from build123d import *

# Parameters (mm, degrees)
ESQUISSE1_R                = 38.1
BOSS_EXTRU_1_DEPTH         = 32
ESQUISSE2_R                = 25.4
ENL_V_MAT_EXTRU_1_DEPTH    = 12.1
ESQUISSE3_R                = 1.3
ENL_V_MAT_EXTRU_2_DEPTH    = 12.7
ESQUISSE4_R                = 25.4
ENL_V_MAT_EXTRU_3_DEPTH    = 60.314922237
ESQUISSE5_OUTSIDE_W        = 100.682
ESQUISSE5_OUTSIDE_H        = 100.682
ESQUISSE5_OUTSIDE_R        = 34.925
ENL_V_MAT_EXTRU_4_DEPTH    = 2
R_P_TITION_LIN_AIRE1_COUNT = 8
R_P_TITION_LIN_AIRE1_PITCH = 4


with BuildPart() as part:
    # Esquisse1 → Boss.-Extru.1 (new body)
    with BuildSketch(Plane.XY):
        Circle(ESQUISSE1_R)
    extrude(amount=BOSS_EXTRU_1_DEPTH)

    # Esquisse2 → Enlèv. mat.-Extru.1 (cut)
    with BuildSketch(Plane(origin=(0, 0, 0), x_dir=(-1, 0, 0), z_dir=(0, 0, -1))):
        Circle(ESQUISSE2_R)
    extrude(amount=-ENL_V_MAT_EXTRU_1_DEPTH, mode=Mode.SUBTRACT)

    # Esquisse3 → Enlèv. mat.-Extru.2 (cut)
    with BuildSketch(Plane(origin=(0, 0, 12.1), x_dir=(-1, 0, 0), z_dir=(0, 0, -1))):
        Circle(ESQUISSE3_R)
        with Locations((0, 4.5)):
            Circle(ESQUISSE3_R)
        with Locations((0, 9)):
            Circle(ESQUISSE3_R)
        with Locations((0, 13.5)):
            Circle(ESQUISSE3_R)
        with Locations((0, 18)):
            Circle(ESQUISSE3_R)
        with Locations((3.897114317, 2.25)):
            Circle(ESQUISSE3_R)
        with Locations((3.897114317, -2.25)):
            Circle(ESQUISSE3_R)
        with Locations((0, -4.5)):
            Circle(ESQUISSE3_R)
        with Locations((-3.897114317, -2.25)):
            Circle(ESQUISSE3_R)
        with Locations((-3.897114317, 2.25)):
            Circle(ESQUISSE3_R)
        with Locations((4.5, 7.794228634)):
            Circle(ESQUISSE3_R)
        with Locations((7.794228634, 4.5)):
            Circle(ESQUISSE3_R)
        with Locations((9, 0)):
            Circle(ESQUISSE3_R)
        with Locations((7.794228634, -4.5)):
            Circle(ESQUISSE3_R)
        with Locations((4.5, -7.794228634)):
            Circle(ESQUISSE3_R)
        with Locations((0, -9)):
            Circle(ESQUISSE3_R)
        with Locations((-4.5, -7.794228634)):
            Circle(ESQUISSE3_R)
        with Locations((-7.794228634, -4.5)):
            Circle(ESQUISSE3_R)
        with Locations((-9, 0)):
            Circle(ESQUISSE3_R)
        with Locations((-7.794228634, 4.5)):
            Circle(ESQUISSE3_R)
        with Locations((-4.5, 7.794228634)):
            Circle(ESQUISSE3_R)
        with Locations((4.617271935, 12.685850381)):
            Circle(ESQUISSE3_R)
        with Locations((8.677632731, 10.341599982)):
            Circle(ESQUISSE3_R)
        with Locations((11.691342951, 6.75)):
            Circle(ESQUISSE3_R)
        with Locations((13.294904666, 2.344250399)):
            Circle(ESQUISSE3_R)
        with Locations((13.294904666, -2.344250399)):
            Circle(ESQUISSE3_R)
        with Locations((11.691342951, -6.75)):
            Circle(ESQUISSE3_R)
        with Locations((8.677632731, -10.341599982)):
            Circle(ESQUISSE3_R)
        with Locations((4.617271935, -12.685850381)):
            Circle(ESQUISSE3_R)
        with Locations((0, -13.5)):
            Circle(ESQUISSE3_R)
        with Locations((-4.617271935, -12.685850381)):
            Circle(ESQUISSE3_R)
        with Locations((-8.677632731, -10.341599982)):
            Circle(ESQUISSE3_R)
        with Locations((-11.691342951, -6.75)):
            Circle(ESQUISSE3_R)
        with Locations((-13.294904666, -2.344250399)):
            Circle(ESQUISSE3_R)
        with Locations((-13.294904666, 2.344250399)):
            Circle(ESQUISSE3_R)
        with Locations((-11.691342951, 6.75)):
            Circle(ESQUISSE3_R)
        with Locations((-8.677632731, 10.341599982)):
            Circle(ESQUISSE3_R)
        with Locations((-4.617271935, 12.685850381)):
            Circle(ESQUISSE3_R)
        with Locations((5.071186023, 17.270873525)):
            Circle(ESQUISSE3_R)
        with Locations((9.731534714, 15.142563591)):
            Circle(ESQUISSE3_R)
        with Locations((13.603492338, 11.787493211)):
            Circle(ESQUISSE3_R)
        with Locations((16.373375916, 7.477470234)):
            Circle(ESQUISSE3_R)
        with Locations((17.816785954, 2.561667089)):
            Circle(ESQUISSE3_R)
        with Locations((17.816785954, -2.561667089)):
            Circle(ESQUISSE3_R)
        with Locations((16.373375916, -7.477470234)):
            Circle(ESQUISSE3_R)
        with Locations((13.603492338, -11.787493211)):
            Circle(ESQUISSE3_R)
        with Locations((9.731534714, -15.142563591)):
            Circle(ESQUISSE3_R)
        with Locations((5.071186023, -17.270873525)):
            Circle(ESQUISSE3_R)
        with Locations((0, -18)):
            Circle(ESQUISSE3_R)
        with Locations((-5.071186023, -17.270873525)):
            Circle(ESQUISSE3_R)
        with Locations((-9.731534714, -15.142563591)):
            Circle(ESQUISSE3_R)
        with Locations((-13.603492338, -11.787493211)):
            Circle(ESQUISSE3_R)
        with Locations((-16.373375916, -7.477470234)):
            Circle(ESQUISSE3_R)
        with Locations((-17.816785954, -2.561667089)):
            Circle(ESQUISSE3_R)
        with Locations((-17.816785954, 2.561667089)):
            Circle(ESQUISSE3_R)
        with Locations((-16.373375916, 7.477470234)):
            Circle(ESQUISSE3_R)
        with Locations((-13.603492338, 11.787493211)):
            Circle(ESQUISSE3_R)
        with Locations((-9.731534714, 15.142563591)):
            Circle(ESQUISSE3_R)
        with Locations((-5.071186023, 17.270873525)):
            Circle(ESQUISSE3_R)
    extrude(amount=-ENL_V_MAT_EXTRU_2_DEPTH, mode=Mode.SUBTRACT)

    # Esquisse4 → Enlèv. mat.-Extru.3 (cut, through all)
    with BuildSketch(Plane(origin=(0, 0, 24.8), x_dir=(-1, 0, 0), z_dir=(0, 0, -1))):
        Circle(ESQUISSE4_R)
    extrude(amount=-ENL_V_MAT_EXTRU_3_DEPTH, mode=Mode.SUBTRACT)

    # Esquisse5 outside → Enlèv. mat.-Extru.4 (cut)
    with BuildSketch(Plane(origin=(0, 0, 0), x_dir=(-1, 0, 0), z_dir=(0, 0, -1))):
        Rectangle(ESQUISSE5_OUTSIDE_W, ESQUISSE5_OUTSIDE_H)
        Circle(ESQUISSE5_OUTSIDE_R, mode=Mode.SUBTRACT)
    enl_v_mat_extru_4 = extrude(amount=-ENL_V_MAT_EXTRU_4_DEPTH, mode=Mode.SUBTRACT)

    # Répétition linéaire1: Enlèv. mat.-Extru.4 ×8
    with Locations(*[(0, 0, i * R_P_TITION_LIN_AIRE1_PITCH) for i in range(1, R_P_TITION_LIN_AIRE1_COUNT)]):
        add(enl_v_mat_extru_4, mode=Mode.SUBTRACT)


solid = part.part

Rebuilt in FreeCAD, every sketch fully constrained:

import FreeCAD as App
import Part
import Sketcher

V = App.Vector
Q = App.Units.Quantity


def add_polygon(sketch, points):
    """Adds a closed chain of lines whose ends are joined by coincident constraints."""
    first, n = sketch.GeometryCount, len(points)
    for a, b in zip(points, points[1:] + points[:1]):
        sketch.addGeometry(Part.LineSegment(App.Vector(*a, 0), App.Vector(*b, 0)), False)
    for i in range(n):
        sketch.addConstraint(Sketcher.Constraint("Coincident", first + i, 2, first + (i + 1) % n, 1))

doc = App.newDocument("Part")
params = doc.addObject("Spreadsheet::Sheet", "Params")
for row, (alias, value) in enumerate([
    ("sketch1_diameter", "76.2 mm"),
    ("pad1_length", "32 mm"),
    ("sketch2_diameter", "50.8 mm"),
    ("pocket1_length", "12.1 mm"),
    ("sketch3_diameter", "2.6 mm"),
    ("pocket2_length", "12.7 mm"),
    ("sketch4_diameter", "50.8 mm"),
    ("sketch5_diameter", "69.85 mm"),
    ("pocket4_length", "2 mm"),
    ("linearpattern_pitch", "4 mm"),
], start=1):
    params.set(f"A{row}", alias)
    params.set(f"B{row}", "=" + value)
    params.setAlias(f"B{row}", alias)

body = doc.addObject("PartDesign::Body", "Body")

# Sketch on XY plane
sketch1 = doc.addObject("Sketcher::SketchObject", "Sketch")
body.addObject(sketch1)
sketch1.AttachmentSupport = (doc.XY_Plane, [""])
sketch1.MapMode = "FlatFace"
sketch1.addGeometry(Part.Circle(V(0, 0, 0), V(0, 0, 1), 38), False)
sketch1.addConstraint([
    Sketcher.Constraint("Coincident", 0, 3, -1, 1),
    Sketcher.Constraint("Diameter", 0, Q("76.2 mm")),
])
sketch1.setExpression("Constraints[1]", "Params.sketch1_diameter")
pad1 = doc.addObject("PartDesign::Pad", "Pad")
body.addObject(pad1)
pad1.Profile = sketch1
pad1.setExpression("Length", "Params.pad1_length")

# Sketch on XY plane
sketch2 = doc.addObject("Sketcher::SketchObject", "Sketch001")
body.addObject(sketch2)
sketch2.AttachmentSupport = (doc.XY_Plane, [""])
sketch2.MapMode = "FlatFace"
sketch2.addGeometry(Part.Circle(V(0, 0, 0), V(0, 0, 1), 25), False)
sketch2.addConstraint([
    Sketcher.Constraint("Coincident", 0, 3, -1, 1),
    Sketcher.Constraint("Diameter", 0, Q("50.8 mm")),
])
sketch2.setExpression("Constraints[1]", "Params.sketch2_diameter")
pocket1 = doc.addObject("PartDesign::Pocket", "Pocket")
body.addObject(pocket1)
pocket1.Profile = sketch2
pocket1.setExpression("Length", "Params.pocket1_length")
pocket1.Reversed = True

# Sketch on XY plane
sketch3 = doc.addObject("Sketcher::SketchObject", "Sketch002")
body.addObject(sketch3)
sketch3.AttachmentSupport = (doc.XY_Plane, [""])
sketch3.MapMode = "FlatFace"
sketch3.AttachmentOffset = App.Placement(V(0, 0, 12.1), App.Rotation())
sketch3.addGeometry([
    Part.Circle(V(0, 0, 0), V(0, 0, 1), 1.3),  # 0
    Part.Circle(V(0, 4.5, 0), V(0, 0, 1), 1.3),  # 1
    Part.Circle(V(0, 9, 0), V(0, 0, 1), 1.3),  # 2
    Part.Circle(V(0, 13.5, 0), V(0, 0, 1), 1.3),  # 3
    Part.Circle(V(0, 18, 0), V(0, 0, 1), 1.3),  # 4
    Part.Circle(V(-3.9, 2.2, 0), V(0, 0, 1), 1.3),  # 5
    Part.Circle(V(-3.9, -2.2, 0), V(0, 0, 1), 1.3),  # 6
    Part.Circle(V(0, -4.5, 0), V(0, 0, 1), 1.3),  # 7
    Part.Circle(V(3.9, -2.2, 0), V(0, 0, 1), 1.3),  # 8
    Part.Circle(V(3.9, 2.2, 0), V(0, 0, 1), 1.3),  # 9
    Part.Circle(V(-4.5, 7.8, 0), V(0, 0, 1), 1.3),  # 10
    Part.Circle(V(-7.8, 4.5, 0), V(0, 0, 1), 1.3),  # 11
    Part.Circle(V(-9, 0, 0), V(0, 0, 1), 1.3),  # 12
    Part.Circle(V(-7.8, -4.5, 0), V(0, 0, 1), 1.3),  # 13
    Part.Circle(V(-4.5, -7.8, 0), V(0, 0, 1), 1.3),  # 14
    Part.Circle(V(0, -9, 0), V(0, 0, 1), 1.3),  # 15
    Part.Circle(V(4.5, -7.8, 0), V(0, 0, 1), 1.3),  # 16
    Part.Circle(V(7.8, -4.5, 0), V(0, 0, 1), 1.3),  # 17
    Part.Circle(V(9, 0, 0), V(0, 0, 1), 1.3),  # 18
    Part.Circle(V(7.8, 4.5, 0), V(0, 0, 1), 1.3),  # 19
    Part.Circle(V(4.5, 7.8, 0), V(0, 0, 1), 1.3),  # 20
    Part.Circle(V(-4.6, 12.7, 0), V(0, 0, 1), 1.3),  # 21
    Part.Circle(V(-8.7, 10.3, 0), V(0, 0, 1), 1.3),  # 22
    Part.Circle(V(-11.7, 6.8, 0), V(0, 0, 1), 1.3),  # 23
    Part.Circle(V(-13.3, 2.3, 0), V(0, 0, 1), 1.3),  # 24
    Part.Circle(V(-13.3, -2.3, 0), V(0, 0, 1), 1.3),  # 25
    Part.Circle(V(-11.7, -6.8, 0), V(0, 0, 1), 1.3),  # 26
    Part.Circle(V(-8.7, -10.3, 0), V(0, 0, 1), 1.3),  # 27
    Part.Circle(V(-4.6, -12.7, 0), V(0, 0, 1), 1.3),  # 28
    Part.Circle(V(0, -13.5, 0), V(0, 0, 1), 1.3),  # 29
    Part.Circle(V(4.6, -12.7, 0), V(0, 0, 1), 1.3),  # 30
    Part.Circle(V(8.7, -10.3, 0), V(0, 0, 1), 1.3),  # 31
    Part.Circle(V(11.7, -6.8, 0), V(0, 0, 1), 1.3),  # 32
    Part.Circle(V(13.3, -2.3, 0), V(0, 0, 1), 1.3),  # 33
    Part.Circle(V(13.3, 2.3, 0), V(0, 0, 1), 1.3),  # 34
    Part.Circle(V(11.7, 6.8, 0), V(0, 0, 1), 1.3),  # 35
    Part.Circle(V(8.7, 10.3, 0), V(0, 0, 1), 1.3),  # 36
    Part.Circle(V(4.6, 12.7, 0), V(0, 0, 1), 1.3),  # 37
    Part.Circle(V(-5.1, 17.3, 0), V(0, 0, 1), 1.3),  # 38
    Part.Circle(V(-9.7, 15.1, 0), V(0, 0, 1), 1.3),  # 39
    Part.Circle(V(-13.6, 11.8, 0), V(0, 0, 1), 1.3),  # 40
    Part.Circle(V(-16.4, 7.5, 0), V(0, 0, 1), 1.3),  # 41
    Part.Circle(V(-17.8, 2.6, 0), V(0, 0, 1), 1.3),  # 42
    Part.Circle(V(-17.8, -2.6, 0), V(0, 0, 1), 1.3),  # 43
    Part.Circle(V(-16.4, -7.5, 0), V(0, 0, 1), 1.3),  # 44
    Part.Circle(V(-13.6, -11.8, 0), V(0, 0, 1), 1.3),  # 45
    Part.Circle(V(-9.7, -15.1, 0), V(0, 0, 1), 1.3),  # 46
    Part.Circle(V(-5.1, -17.3, 0), V(0, 0, 1), 1.3),  # 47
    Part.Circle(V(0, -18, 0), V(0, 0, 1), 1.3),  # 48
    Part.Circle(V(5.1, -17.3, 0), V(0, 0, 1), 1.3),  # 49
    Part.Circle(V(9.7, -15.1, 0), V(0, 0, 1), 1.3),  # 50
    Part.Circle(V(13.6, -11.8, 0), V(0, 0, 1), 1.3),  # 51
    Part.Circle(V(16.4, -7.5, 0), V(0, 0, 1), 1.3),  # 52
    Part.Circle(V(17.8, -2.6, 0), V(0, 0, 1), 1.3),  # 53
    Part.Circle(V(17.8, 2.6, 0), V(0, 0, 1), 1.3),  # 54
    Part.Circle(V(16.4, 7.5, 0), V(0, 0, 1), 1.3),  # 55
    Part.Circle(V(13.6, 11.8, 0), V(0, 0, 1), 1.3),  # 56
    Part.Circle(V(9.7, 15.1, 0), V(0, 0, 1), 1.3),  # 57
    Part.Circle(V(5.1, 17.3, 0), V(0, 0, 1), 1.3),  # 58
], False)
sketch3.addConstraint([
    Sketcher.Constraint("Coincident", 0, 3, -1, 1),
    Sketcher.Constraint("Equal", 0, 1),
    Sketcher.Constraint("Equal", 1, 2),
    Sketcher.Constraint("Equal", 2, 3),
    Sketcher.Constraint("Equal", 3, 4),
    Sketcher.Constraint("Equal", 4, 5),
    Sketcher.Constraint("Equal", 5, 6),
    Sketcher.Constraint("Equal", 6, 7),
    Sketcher.Constraint("Equal", 7, 8),
    Sketcher.Constraint("Equal", 8, 9),
    Sketcher.Constraint("Equal", 9, 10),
    Sketcher.Constraint("Equal", 10, 11),
    Sketcher.Constraint("Equal", 11, 12),
    Sketcher.Constraint("Equal", 12, 13),
    Sketcher.Constraint("Equal", 13, 14),
    Sketcher.Constraint("Equal", 14, 15),
    Sketcher.Constraint("Equal", 15, 16),
    Sketcher.Constraint("Equal", 16, 17),
    Sketcher.Constraint("Equal", 17, 18),
    Sketcher.Constraint("Equal", 18, 19),
    Sketcher.Constraint("Equal", 19, 20),
    Sketcher.Constraint("Equal", 20, 21),
    Sketcher.Constraint("Equal", 21, 22),
    Sketcher.Constraint("Equal", 22, 23),
    Sketcher.Constraint("Equal", 23, 24),
    Sketcher.Constraint("Equal", 24, 25),
    Sketcher.Constraint("Equal", 25, 26),
    Sketcher.Constraint("Equal", 26, 27),
    Sketcher.Constraint("Equal", 27, 28),
    Sketcher.Constraint("Equal", 28, 29),
    Sketcher.Constraint("Equal", 29, 30),
    Sketcher.Constraint("Equal", 30, 31),
    Sketcher.Constraint("Equal", 31, 32),
    Sketcher.Constraint("Equal", 32, 33),
    Sketcher.Constraint("Equal", 33, 34),
    Sketcher.Constraint("Equal", 34, 35),
    Sketcher.Constraint("Equal", 35, 36),
    Sketcher.Constraint("Equal", 36, 37),
    Sketcher.Constraint("Equal", 37, 38),
    Sketcher.Constraint("Equal", 38, 39),
    Sketcher.Constraint("Equal", 39, 40),
    Sketcher.Constraint("Equal", 40, 41),
    Sketcher.Constraint("Equal", 41, 42),
    Sketcher.Constraint("Equal", 42, 43),
    Sketcher.Constraint("Equal", 43, 44),
    Sketcher.Constraint("Equal", 44, 45),
    Sketcher.Constraint("Equal", 45, 46),
    Sketcher.Constraint("Equal", 46, 47),
    Sketcher.Constraint("Equal", 47, 48),
    Sketcher.Constraint("Equal", 48, 49),
    Sketcher.Constraint("Equal", 49, 50),
    Sketcher.Constraint("Equal", 50, 51),
    Sketcher.Constraint("Equal", 51, 52),
    Sketcher.Constraint("Equal", 52, 53),
    Sketcher.Constraint("Equal", 53, 54),
    Sketcher.Constraint("Equal", 54, 55),
    Sketcher.Constraint("Equal", 55, 56),
    Sketcher.Constraint("Equal", 56, 57),
    Sketcher.Constraint("Equal", 57, 58),
    Sketcher.Constraint("Symmetric", 1, 3, 7, 3, -1, 1),
    Sketcher.Constraint("Symmetric", 5, 3, 8, 3, -1, 1),
    Sketcher.Constraint("Symmetric", 6, 3, 9, 3, -1, 1),
    Sketcher.Constraint("Symmetric", 2, 3, 15, 3, -1, 1),
    Sketcher.Constraint("Symmetric", 10, 3, 16, 3, -1, 1),
    Sketcher.Constraint("Symmetric", 11, 3, 17, 3, -1, 1),
    Sketcher.Constraint("Symmetric", 12, 3, 18, 3, -1, 1),
    Sketcher.Constraint("Symmetric", 13, 3, 19, 3, -1, 1),
    Sketcher.Constraint("Symmetric", 14, 3, 20, 3, -1, 1),
    Sketcher.Constraint("Symmetric", 3, 3, 29, 3, -1, 1),
    Sketcher.Constraint("Symmetric", 21, 3, 30, 3, -1, 1),
    Sketcher.Constraint("Symmetric", 22, 3, 31, 3, -1, 1),
    Sketcher.Constraint("Symmetric", 23, 3, 32, 3, -1, 1),
    Sketcher.Constraint("Symmetric", 24, 3, 33, 3, -1, 1),
    Sketcher.Constraint("Symmetric", 25, 3, 34, 3, -1, 1),
    Sketcher.Constraint("Symmetric", 26, 3, 35, 3, -1, 1),
    Sketcher.Constraint("Symmetric", 27, 3, 36, 3, -1, 1),
    Sketcher.Constraint("Symmetric", 28, 3, 37, 3, -1, 1),
    Sketcher.Constraint("Symmetric", 4, 3, 48, 3, -1, 1),
    Sketcher.Constraint("Symmetric", 38, 3, 49, 3, -1, 1),
    Sketcher.Constraint("Symmetric", 39, 3, 50, 3, -1, 1),
    Sketcher.Constraint("Symmetric", 40, 3, 51, 3, -1, 1),
    Sketcher.Constraint("Symmetric", 41, 3, 52, 3, -1, 1),
    Sketcher.Constraint("Symmetric", 42, 3, 53, 3, -1, 1),
    Sketcher.Constraint("Symmetric", 43, 3, 54, 3, -1, 1),
    Sketcher.Constraint("Symmetric", 44, 3, 55, 3, -1, 1),
    Sketcher.Constraint("Symmetric", 45, 3, 56, 3, -1, 1),
    Sketcher.Constraint("Symmetric", 46, 3, 57, 3, -1, 1),
    Sketcher.Constraint("Symmetric", 47, 3, 58, 3, -1, 1),
    Sketcher.Constraint("Symmetric", 6, 3, 8, 3, -2),
    Sketcher.Constraint("Symmetric", 14, 3, 16, 3, -2),
    Sketcher.Constraint("Symmetric", 13, 3, 17, 3, -2),
    Sketcher.Constraint("Symmetric", 28, 3, 30, 3, -2),
    Sketcher.Constraint("Symmetric", 27, 3, 31, 3, -2),
    Sketcher.Constraint("Symmetric", 26, 3, 32, 3, -2),
    Sketcher.Constraint("Symmetric", 25, 3, 33, 3, -2),
    Sketcher.Constraint("Symmetric", 47, 3, 49, 3, -2),
    Sketcher.Constraint("Symmetric", 46, 3, 50, 3, -2),
    Sketcher.Constraint("Symmetric", 45, 3, 51, 3, -2),
    Sketcher.Constraint("Symmetric", 44, 3, 52, 3, -2),
    Sketcher.Constraint("Symmetric", 43, 3, 53, 3, -2),
    Sketcher.Constraint("PointOnObject", 1, 3, -2),
    Sketcher.Constraint("PointOnObject", 2, 3, -2),
    Sketcher.Constraint("PointOnObject", 3, 3, -2),
    Sketcher.Constraint("PointOnObject", 4, 3, -2),
    Sketcher.Constraint("PointOnObject", 12, 3, -1),
    Sketcher.Constraint("Horizontal", 1, 3, 11, 3),
    Sketcher.Constraint("Diameter", 0, Q("2.6 mm")),
    Sketcher.Constraint("DistanceY", -1, 1, 2, 3, Q("9 mm")),
    Sketcher.Constraint("DistanceY", -1, 1, 4, 3, Q("18 mm")),
    Sketcher.Constraint("DistanceX", 12, 3, -1, 1, Q("9 mm")),
    Sketcher.Constraint("DistanceY", 1, 3, 3, 3, Q("9 mm")),
    Sketcher.Constraint("DistanceY", 7, 3, 1, 3, Q("9 mm")),
    Sketcher.Constraint("DistanceX", 14, 3, 16, 3, Q("9 mm")),
    Sketcher.Constraint("DistanceY", 6, 3, 5, 3, Q("4.5 mm")),
    Sketcher.Constraint("DistanceY", 5, 3, 23, 3, Q("4.5 mm")),
    Sketcher.Constraint("DistanceY", -1, 1, 22, 3, Q("10.3416 mm")),
    Sketcher.Constraint("DistanceY", 25, 3, 24, 3, Q("4.688501 mm")),
    Sketcher.Constraint("DistanceX", 39, 3, 22, 3, Q("1.053902 mm")),
    Sketcher.Constraint("DistanceY", -1, 1, 10, 3, Q("7.794229 mm")),
    Sketcher.Constraint("DistanceX", 11, 3, -1, 1, Q("7.794229 mm")),
    Sketcher.Constraint("DistanceX", 21, 3, -1, 1, Q("4.617272 mm")),
    Sketcher.Constraint("DistanceY", -1, 1, 21, 3, Q("12.68585 mm")),
    Sketcher.Constraint("DistanceY", -1, 1, 41, 3, Q("7.47747 mm")),
    Sketcher.Constraint("DistanceX", 6, 3, 8, 3, Q("7.794229 mm")),
    Sketcher.Constraint("DistanceX", 22, 3, 21, 3, Q("4.060361 mm")),
    Sketcher.Constraint("DistanceX", 23, 3, 22, 3, Q("3.01371 mm")),
    Sketcher.Constraint("DistanceX", 24, 3, 23, 3, Q("1.603562 mm")),
    Sketcher.Constraint("DistanceX", 39, 3, 38, 3, Q("4.660349 mm")),
    Sketcher.Constraint("DistanceY", 39, 3, 38, 3, Q("2.12831 mm")),
    Sketcher.Constraint("DistanceY", 40, 3, 39, 3, Q("3.35507 mm")),
    Sketcher.Constraint("DistanceX", 40, 3, 22, 3, Q("4.92586 mm")),
    Sketcher.Constraint("DistanceX", 41, 3, 24, 3, Q("3.078471 mm")),
    Sketcher.Constraint("DistanceX", 42, 3, 24, 3, Q("4.521881 mm")),
    Sketcher.Constraint("DistanceY", -1, 1, 38, 3, Q("17.270874 mm")),
    Sketcher.Constraint("DistanceY", -1, 1, 42, 3, Q("2.561667 mm")),
])
sketch3.setExpression("Constraints[106]", "Params.sketch3_diameter")
pocket2 = doc.addObject("PartDesign::Pocket", "Pocket001")
body.addObject(pocket2)
pocket2.Profile = sketch3
pocket2.setExpression("Length", "Params.pocket2_length")
pocket2.Reversed = True

# Sketch on XY plane
sketch4 = doc.addObject("Sketcher::SketchObject", "Sketch003")
body.addObject(sketch4)
sketch4.AttachmentSupport = (doc.XY_Plane, [""])
sketch4.MapMode = "FlatFace"
sketch4.AttachmentOffset = App.Placement(V(0, 0, 24.8), App.Rotation())
sketch4.addGeometry(Part.Circle(V(0, 0, 0), V(0, 0, 1), 25), False)
sketch4.addConstraint([
    Sketcher.Constraint("Coincident", 0, 3, -1, 1),
    Sketcher.Constraint("Diameter", 0, Q("50.8 mm")),
])
sketch4.setExpression("Constraints[1]", "Params.sketch4_diameter")
pocket3 = doc.addObject("PartDesign::Pocket", "Pocket002")
body.addObject(pocket3)
pocket3.Profile = sketch4
pocket3.Type = "ThroughAll"
pocket3.Reversed = True

# Sketch on XY plane
sketch5 = doc.addObject("Sketcher::SketchObject", "Sketch004")
body.addObject(sketch5)
sketch5.AttachmentSupport = (doc.XY_Plane, [""])
sketch5.MapMode = "FlatFace"
add_polygon(sketch5, [(50, 50), (50, -50), (-50, -50), (-50, 50)])  # lines 0-3
sketch5.addGeometry(Part.Circle(V(0, 0, 0), V(0, 0, 1), 35), False)  # 4
sketch5.addConstraint([
    Sketcher.Constraint("Vertical", 0),
    Sketcher.Constraint("Horizontal", 1),
    Sketcher.Constraint("Vertical", 2),
    Sketcher.Constraint("Horizontal", 3),
    Sketcher.Constraint("Coincident", 4, 3, -1, 1),
    Sketcher.Constraint("Symmetric", 0, 2, 2, 2, -1, 1),
    Sketcher.Constraint("Equal", 3, 0),
    Sketcher.Constraint("Diameter", 4, Q("69.85 mm")),
    Sketcher.Constraint("DistanceX", 1, 2, 1, 1, Q("100.682 mm")),
])
sketch5.setExpression("Constraints[11]", "Params.sketch5_diameter")
pocket4 = doc.addObject("PartDesign::Pocket", "Pocket003")
body.addObject(pocket4)
pocket4.Profile = sketch5
pocket4.setExpression("Length", "Params.pocket4_length")
pocket4.Reversed = True
doc.recompute()

linearpattern = doc.addObject("PartDesign::LinearPattern", "LinearPattern")
body.addObject(linearpattern)
linearpattern.Originals = [pocket4]
linearpattern.Direction = (doc.Z_Axis, [""])
linearpattern.Mode = "offset"
linearpattern.setExpression("Offset", "Params.linearpattern_pitch")
linearpattern.Occurrences = 8
body.Tip = linearpattern

doc.recompute()
